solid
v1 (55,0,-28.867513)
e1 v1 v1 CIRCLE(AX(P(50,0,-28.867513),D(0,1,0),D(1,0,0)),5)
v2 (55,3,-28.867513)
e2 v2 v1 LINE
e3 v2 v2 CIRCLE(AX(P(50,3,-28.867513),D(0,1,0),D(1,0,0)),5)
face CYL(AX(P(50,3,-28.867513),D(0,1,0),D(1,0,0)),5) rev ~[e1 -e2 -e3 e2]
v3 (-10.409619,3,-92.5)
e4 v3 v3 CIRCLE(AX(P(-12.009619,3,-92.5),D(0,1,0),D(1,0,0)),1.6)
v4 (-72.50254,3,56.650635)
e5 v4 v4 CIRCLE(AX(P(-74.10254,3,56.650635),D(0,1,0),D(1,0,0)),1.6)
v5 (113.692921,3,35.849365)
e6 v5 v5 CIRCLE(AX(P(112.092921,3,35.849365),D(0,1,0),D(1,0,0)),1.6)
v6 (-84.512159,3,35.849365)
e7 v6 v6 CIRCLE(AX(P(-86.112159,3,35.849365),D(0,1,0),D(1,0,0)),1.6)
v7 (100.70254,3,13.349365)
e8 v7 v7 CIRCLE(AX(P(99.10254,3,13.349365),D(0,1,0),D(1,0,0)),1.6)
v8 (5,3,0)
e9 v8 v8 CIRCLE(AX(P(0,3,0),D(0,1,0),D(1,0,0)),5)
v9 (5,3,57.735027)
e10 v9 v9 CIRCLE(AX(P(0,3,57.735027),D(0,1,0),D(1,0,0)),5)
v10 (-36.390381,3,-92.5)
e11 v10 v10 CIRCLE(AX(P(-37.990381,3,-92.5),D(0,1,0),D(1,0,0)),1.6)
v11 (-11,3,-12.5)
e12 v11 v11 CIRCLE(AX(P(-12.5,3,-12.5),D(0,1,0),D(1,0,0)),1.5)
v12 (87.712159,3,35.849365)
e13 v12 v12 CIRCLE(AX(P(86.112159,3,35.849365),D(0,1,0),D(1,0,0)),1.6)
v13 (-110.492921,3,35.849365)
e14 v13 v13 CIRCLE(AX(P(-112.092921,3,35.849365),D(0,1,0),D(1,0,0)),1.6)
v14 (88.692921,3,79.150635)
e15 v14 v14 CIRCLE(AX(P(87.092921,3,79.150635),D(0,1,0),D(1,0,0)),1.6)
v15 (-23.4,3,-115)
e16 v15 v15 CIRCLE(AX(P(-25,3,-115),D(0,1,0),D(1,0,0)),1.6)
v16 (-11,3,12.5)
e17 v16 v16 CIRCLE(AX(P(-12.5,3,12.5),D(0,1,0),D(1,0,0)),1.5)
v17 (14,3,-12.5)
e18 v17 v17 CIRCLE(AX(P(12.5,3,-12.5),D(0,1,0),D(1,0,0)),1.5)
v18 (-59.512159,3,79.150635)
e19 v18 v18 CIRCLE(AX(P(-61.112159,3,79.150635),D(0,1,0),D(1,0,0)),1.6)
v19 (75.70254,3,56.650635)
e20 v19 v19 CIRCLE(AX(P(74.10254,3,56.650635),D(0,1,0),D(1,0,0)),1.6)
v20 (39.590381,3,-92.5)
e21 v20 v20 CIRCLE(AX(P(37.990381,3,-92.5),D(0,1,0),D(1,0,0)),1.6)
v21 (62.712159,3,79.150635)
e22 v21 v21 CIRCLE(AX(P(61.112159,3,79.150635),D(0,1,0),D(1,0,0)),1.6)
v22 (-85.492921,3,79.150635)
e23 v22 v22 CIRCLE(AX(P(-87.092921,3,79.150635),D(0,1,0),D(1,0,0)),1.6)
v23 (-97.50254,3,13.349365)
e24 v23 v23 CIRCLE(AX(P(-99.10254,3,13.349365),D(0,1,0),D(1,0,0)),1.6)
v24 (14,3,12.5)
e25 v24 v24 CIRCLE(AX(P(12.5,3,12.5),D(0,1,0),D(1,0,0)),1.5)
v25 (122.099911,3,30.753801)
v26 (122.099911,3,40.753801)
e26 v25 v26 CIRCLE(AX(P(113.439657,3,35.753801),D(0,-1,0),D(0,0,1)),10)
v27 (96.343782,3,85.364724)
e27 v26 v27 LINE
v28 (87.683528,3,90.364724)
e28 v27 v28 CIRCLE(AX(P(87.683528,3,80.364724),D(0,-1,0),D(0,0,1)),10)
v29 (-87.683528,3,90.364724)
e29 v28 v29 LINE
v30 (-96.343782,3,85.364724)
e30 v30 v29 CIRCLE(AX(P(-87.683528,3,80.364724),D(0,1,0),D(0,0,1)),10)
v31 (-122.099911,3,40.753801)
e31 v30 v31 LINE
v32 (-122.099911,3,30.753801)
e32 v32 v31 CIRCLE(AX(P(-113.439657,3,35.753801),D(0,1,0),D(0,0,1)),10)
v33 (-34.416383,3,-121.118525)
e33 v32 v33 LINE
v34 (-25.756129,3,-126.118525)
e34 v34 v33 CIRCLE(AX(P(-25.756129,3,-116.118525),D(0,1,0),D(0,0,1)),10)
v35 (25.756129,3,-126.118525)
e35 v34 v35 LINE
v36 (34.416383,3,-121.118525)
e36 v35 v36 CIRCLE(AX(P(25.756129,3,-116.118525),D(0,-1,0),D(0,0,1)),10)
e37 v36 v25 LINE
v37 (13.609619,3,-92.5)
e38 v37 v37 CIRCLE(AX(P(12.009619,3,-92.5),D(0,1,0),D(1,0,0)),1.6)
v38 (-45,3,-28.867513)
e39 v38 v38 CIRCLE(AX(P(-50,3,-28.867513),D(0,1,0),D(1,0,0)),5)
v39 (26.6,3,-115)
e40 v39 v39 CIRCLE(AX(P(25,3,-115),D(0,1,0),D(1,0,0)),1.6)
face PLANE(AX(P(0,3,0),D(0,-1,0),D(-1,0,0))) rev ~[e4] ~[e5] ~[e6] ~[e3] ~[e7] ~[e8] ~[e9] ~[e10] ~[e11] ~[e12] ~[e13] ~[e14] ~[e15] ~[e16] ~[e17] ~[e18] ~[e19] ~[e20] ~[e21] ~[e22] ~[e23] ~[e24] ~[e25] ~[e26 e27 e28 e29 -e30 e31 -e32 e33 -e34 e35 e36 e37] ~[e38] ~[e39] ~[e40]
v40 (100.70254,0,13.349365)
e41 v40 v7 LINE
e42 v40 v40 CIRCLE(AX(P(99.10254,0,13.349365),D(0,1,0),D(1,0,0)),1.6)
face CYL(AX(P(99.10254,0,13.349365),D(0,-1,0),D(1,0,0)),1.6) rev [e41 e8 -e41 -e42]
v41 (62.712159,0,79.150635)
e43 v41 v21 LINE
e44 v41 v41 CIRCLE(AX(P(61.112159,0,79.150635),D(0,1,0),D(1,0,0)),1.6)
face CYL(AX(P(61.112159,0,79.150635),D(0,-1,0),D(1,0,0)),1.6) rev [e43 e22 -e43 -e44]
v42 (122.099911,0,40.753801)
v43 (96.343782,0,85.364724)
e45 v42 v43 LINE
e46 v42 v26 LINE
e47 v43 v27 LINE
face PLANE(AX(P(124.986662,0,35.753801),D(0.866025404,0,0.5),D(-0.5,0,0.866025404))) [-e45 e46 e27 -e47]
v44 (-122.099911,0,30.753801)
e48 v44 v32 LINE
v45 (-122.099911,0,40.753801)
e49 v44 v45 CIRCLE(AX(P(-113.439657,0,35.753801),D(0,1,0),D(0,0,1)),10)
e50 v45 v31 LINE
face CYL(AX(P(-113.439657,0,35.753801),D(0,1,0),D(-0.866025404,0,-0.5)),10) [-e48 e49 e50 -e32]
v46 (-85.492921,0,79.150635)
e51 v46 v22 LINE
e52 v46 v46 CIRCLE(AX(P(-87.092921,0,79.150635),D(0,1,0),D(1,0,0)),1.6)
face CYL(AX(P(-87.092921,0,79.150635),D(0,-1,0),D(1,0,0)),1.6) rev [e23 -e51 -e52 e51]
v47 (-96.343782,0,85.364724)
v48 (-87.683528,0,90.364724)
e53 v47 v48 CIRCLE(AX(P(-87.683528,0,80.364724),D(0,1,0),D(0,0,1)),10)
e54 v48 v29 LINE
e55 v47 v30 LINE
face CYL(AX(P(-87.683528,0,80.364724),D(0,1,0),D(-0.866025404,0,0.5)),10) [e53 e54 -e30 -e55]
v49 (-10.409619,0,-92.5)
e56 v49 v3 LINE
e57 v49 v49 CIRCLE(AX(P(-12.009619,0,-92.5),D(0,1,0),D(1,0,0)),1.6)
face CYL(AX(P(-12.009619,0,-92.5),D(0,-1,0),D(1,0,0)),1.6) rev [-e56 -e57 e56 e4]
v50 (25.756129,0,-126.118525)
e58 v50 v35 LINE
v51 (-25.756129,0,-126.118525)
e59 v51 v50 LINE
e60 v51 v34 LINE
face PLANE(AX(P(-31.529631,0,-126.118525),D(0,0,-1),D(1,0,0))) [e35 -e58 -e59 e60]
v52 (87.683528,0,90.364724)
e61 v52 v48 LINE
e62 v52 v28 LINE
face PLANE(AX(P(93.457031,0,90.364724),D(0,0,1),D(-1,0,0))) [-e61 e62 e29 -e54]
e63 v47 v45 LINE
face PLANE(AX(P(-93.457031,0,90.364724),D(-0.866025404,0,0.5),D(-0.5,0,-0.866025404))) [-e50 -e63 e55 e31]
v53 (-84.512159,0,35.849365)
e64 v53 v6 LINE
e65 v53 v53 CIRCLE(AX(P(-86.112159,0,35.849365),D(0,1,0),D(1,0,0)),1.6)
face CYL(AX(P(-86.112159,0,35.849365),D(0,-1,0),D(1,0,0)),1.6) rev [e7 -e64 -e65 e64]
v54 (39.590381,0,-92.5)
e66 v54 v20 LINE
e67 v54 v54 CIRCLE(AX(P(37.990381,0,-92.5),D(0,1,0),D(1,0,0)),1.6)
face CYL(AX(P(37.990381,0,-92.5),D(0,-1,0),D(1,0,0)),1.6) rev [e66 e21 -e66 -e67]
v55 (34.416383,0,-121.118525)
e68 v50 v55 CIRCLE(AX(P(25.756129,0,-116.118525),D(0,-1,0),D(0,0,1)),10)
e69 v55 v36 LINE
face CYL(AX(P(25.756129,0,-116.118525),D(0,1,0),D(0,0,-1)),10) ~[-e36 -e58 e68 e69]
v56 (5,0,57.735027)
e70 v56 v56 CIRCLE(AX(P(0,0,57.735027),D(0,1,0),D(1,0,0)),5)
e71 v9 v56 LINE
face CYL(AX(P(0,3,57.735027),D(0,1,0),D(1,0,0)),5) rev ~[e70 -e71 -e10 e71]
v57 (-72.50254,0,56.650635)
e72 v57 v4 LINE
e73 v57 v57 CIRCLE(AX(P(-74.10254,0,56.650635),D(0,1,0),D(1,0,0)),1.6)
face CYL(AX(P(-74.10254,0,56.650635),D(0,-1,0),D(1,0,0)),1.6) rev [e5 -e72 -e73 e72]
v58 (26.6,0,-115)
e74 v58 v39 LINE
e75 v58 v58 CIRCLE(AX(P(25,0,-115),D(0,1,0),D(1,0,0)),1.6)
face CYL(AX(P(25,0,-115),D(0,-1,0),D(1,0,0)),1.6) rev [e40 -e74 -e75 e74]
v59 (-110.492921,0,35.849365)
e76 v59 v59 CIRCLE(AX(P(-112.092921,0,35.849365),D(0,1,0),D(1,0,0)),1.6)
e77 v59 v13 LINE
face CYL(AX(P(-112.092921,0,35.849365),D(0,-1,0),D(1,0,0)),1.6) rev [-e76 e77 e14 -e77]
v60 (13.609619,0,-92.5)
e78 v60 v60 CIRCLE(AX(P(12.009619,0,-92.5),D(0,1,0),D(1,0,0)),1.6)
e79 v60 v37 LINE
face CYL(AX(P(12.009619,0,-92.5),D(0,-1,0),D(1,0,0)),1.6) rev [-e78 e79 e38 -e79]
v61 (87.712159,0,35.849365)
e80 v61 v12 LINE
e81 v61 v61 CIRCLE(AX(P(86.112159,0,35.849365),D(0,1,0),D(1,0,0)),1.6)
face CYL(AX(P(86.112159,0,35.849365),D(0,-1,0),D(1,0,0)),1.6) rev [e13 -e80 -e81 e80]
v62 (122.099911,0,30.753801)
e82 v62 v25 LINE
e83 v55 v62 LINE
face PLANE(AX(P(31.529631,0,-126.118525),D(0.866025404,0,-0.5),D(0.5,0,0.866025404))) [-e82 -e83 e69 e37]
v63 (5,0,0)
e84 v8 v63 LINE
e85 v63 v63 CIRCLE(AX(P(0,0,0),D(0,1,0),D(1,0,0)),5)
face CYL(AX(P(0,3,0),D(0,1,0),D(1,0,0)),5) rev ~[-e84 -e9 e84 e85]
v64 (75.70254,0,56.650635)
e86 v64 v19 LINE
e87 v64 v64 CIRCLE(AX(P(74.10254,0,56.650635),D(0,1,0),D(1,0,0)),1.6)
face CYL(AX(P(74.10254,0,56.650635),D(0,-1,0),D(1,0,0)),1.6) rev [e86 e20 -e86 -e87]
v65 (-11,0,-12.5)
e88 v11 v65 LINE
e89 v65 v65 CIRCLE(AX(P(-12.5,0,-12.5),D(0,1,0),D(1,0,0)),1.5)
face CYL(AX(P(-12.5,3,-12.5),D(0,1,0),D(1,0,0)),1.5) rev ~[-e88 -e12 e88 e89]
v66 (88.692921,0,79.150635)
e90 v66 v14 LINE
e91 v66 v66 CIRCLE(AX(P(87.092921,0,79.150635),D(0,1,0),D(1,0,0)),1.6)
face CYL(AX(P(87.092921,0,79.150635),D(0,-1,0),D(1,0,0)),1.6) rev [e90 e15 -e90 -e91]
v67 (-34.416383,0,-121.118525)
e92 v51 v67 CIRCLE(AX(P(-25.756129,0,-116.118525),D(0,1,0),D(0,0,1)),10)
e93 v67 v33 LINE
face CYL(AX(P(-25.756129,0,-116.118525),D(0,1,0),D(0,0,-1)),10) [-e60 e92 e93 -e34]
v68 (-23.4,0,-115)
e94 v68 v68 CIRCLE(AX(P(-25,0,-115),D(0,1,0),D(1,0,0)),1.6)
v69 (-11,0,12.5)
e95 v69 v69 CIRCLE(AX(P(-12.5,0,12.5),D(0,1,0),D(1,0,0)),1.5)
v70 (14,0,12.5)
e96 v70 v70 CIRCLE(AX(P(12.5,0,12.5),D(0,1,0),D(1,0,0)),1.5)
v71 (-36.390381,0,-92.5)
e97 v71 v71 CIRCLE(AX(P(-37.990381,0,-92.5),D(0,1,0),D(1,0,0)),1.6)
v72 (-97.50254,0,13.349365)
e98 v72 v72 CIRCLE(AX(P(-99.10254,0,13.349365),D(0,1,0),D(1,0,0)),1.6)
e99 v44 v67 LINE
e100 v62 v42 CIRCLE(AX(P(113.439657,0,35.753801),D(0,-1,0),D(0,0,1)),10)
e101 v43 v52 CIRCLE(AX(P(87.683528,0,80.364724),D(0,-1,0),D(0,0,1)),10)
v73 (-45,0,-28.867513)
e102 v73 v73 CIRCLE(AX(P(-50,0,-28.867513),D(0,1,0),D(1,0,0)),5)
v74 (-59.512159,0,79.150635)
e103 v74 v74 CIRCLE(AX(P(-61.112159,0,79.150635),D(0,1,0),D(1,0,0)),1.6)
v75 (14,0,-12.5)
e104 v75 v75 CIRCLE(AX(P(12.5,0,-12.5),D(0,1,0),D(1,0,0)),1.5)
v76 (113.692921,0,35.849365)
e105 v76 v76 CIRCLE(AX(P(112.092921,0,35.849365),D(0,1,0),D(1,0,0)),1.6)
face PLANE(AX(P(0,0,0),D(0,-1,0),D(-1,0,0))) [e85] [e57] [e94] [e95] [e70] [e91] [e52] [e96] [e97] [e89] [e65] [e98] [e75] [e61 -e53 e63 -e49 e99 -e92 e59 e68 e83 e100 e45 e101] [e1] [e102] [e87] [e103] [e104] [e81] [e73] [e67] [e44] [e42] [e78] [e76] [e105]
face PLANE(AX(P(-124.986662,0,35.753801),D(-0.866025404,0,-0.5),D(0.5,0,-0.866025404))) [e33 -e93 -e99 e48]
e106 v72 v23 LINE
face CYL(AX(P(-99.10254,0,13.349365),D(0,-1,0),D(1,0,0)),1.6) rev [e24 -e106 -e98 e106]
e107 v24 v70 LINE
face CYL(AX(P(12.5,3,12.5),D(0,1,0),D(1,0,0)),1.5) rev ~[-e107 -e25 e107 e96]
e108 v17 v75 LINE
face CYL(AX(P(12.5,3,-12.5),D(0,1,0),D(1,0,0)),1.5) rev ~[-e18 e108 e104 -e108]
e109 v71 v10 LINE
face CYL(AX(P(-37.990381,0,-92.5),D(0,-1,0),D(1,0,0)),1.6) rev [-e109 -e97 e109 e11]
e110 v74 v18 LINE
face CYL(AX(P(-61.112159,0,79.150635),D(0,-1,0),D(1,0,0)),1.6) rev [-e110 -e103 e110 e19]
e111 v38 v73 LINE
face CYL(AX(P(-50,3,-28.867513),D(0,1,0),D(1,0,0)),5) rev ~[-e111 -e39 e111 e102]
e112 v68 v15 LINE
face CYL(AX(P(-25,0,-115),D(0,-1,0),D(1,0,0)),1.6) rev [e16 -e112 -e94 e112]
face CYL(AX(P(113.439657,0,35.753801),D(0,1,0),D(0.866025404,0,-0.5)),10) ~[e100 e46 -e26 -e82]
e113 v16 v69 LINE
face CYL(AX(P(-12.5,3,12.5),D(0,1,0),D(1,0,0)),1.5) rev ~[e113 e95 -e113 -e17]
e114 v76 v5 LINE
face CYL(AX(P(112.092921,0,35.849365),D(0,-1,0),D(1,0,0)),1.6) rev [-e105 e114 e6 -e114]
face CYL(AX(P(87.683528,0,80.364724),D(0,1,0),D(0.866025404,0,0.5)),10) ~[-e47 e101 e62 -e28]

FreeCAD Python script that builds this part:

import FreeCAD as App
import Part
import Sketcher
Q = App.Units.Quantity


def edges_at(feature, points):
    """Names of the edges that pass closest to the given points."""
    edges = feature.Shape.Edges
    near = lambda p: min(range(len(edges)), key=lambda i: edges[i].distToShape(Part.Vertex(*p))[0])
    return sorted({f"Edge{near(p) + 1}" for p in points})


def add_polygon(sketch, points):
    """Adds a closed chain of lines whose ends are joined by coincident constraints."""
    first, n = sketch.GeometryCount, len(points)
    for a, b in zip(points, points[1:] + points[:1]):
        sketch.addGeometry(Part.LineSegment(App.Vector(*a, 0), App.Vector(*b, 0)), False)
    for i in range(n):
        sketch.addConstraint(Sketcher.Constraint("Coincident", first + i, 2, first + (i + 1) % n, 1))

doc = App.newDocument("Part")
body = doc.addObject("PartDesign::Body", "Body")

# Sketch on XZ plane
sketch1 = body.newObject("Sketcher::SketchObject", "Sketch")
sketch1.AttachmentSupport = (doc.getObject("XZ_Plane"), [""])
sketch1.MapMode = "FlatFace"
add_polygon(sketch1, [(31.529631, -126.118525), (-31.529631, -126.118525), (-124.986662, 35.753801), (-93.457031, 90.364724), (93.457031, 90.364724), (124.986662, 35.753801)])  # lines 0-5
sketch1.addGeometry(Part.Circle(App.Vector(87.092921, 79.150635, 0), App.Vector(0, 0, 1), 1.6), False)  # 6
sketch1.addGeometry(Part.Circle(App.Vector(61.112159, 79.150635, 0), App.Vector(0, 0, 1), 1.6), False)  # 7
sketch1.addGeometry(Part.Circle(App.Vector(74.10254, 56.650635, 0), App.Vector(0, 0, 1), 1.6), False)  # 8
sketch1.addGeometry(Part.Circle(App.Vector(112.092921, 35.849365, 0), App.Vector(0, 0, 1), 1.6), False)  # 9
sketch1.addGeometry(Part.Circle(App.Vector(86.112159, 35.849365, 0), App.Vector(0, 0, 1), 1.6), False)  # 10
sketch1.addGeometry(Part.Circle(App.Vector(99.10254, 13.349365, 0), App.Vector(0, 0, 1), 1.6), False)  # 11
sketch1.addGeometry(Part.Circle(App.Vector(-61.112159, 79.150635, 0), App.Vector(0, 0, 1), 1.6), False)  # 12
sketch1.addGeometry(Part.Circle(App.Vector(-74.10254, 56.650635, 0), App.Vector(0, 0, 1), 1.6), False)  # 13
sketch1.addGeometry(Part.Circle(App.Vector(-87.092921, 79.150635, 0), App.Vector(0, 0, 1), 1.6), False)  # 14
sketch1.addGeometry(Part.Circle(App.Vector(-86.112159, 35.849365, 0), App.Vector(0, 0, 1), 1.6), False)  # 15
sketch1.addGeometry(Part.Circle(App.Vector(-112.092921, 35.849365, 0), App.Vector(0, 0, 1), 1.6), False)  # 16
sketch1.addGeometry(Part.Circle(App.Vector(-99.10254, 13.349365, 0), App.Vector(0, 0, 1), 1.6), False)  # 17
sketch1.addGeometry(Part.Circle(App.Vector(37.990381, -92.5, 0), App.Vector(0, 0, 1), 1.6), False)  # 18
sketch1.addGeometry(Part.Circle(App.Vector(12.009619, -92.5, 0), App.Vector(0, 0, 1), 1.6), False)  # 19
sketch1.addGeometry(Part.Circle(App.Vector(25, -115, 0), App.Vector(0, 0, 1), 1.6), False)  # 20
sketch1.addGeometry(Part.Circle(App.Vector(-12.009619, -92.5, 0), App.Vector(0, 0, 1), 1.6), False)  # 21
sketch1.addGeometry(Part.Circle(App.Vector(-25, -115, 0), App.Vector(0, 0, 1), 1.6), False)  # 22
sketch1.addGeometry(Part.Circle(App.Vector(-37.990381, -92.5, 0), App.Vector(0, 0, 1), 1.6), False)  # 23
sketch1.addConstraint([
    Sketcher.Constraint("Horizontal", 0),
    Sketcher.Constraint("Horizontal", 3),
    Sketcher.Constraint("Equal", 6, 7),
    Sketcher.Constraint("Equal", 7, 8),
    Sketcher.Constraint("Equal", 8, 9),
    Sketcher.Constraint("Equal", 9, 10),
    Sketcher.Constraint("Equal", 10, 11),
    Sketcher.Constraint("Equal", 11, 12),
    Sketcher.Constraint("Equal", 12, 13),
    Sketcher.Constraint("Equal", 13, 14),
    Sketcher.Constraint("Equal", 14, 15),
    Sketcher.Constraint("Equal", 15, 16),
    Sketcher.Constraint("Equal", 16, 17),
    Sketcher.Constraint("Equal", 17, 18),
    Sketcher.Constraint("Equal", 18, 19),
    Sketcher.Constraint("Equal", 19, 20),
    Sketcher.Constraint("Equal", 20, 21),
    Sketcher.Constraint("Equal", 21, 22),
    Sketcher.Constraint("Equal", 22, 23),
    Sketcher.Constraint("Symmetric", 7, 3, 12, 3, -2),
    Sketcher.Constraint("Symmetric", 8, 3, 13, 3, -2),
    Sketcher.Constraint("Symmetric", 6, 3, 14, 3, -2),
    Sketcher.Constraint("Symmetric", 10, 3, 15, 3, -2),
    Sketcher.Constraint("Symmetric", 9, 3, 16, 3, -2),
    Sketcher.Constraint("Symmetric", 11, 3, 17, 3, -2),
    Sketcher.Constraint("Symmetric", 19, 3, 21, 3, -2),
    Sketcher.Constraint("Symmetric", 20, 3, 22, 3, -2),
    Sketcher.Constraint("Symmetric", 18, 3, 23, 3, -2),
    Sketcher.Constraint("Symmetric", 1, 2, 4, 2, -2),
    Sketcher.Constraint("Parallel", 1, 4),
    Sketcher.Constraint("Parallel", 2, 5),
    Sketcher.Constraint("Horizontal", 6, 3, 7, 3),
    Sketcher.Constraint("Horizontal", 9, 3, 10, 3),
    Sketcher.Constraint("Horizontal", 18, 3, 19, 3),
    Sketcher.Constraint("Equal", 2, 4),
    Sketcher.Constraint("Diameter", 6, Q("3.2 mm")),
    Sketcher.Constraint("Angle", 1, Q("120 deg")),
    Sketcher.Constraint("DistanceX", -1, 1, 20, 3, Q("25 mm")),
    Sketcher.Constraint("DistanceY", 20, 3, -1, 1, Q("115 mm")),
    Sketcher.Constraint("DistanceX", 6, 3, 9, 3, Q("25 mm")),
    Sketcher.Constraint("DistanceX", 7, 3, 10, 3, Q("25 mm")),
    Sketcher.Constraint("DistanceX", 8, 3, 11, 3, Q("25 mm")),
    Sketcher.Constraint("DistanceX", 21, 3, 18, 3, Q("50 mm")),
    Sketcher.Constraint("DistanceY", 18, 3, -1, 1, Q("92.5 mm")),
    Sketcher.Constraint("DistanceY", 8, 3, 7, 3, Q("22.5 mm")),
    Sketcher.Constraint("DistanceY", 11, 3, 10, 3, Q("22.5 mm")),
    Sketcher.Constraint("DistanceX", 3, 1, 3, 2, Q("186.914062 mm")),
    Sketcher.Constraint("DistanceY", -1, 1, 1, 2, Q("35.753801 mm")),
    Sketcher.Constraint("DistanceX", 12, 3, 8, 3, Q("135.2147 mm")),
    Sketcher.Constraint("Distance", 1, Q("186.914062 mm")),
    Sketcher.Constraint("DistanceX", 0, 2, 0, 1, Q("63.059263 mm")),
    Sketcher.Constraint("DistanceX", -1, 1, 6, 3, Q("87.092921 mm")),
    Sketcher.Constraint("DistanceX", -1, 1, 7, 3, Q("61.112159 mm")),
    Sketcher.Constraint("DistanceX", -1, 1, 18, 3, Q("37.990381 mm")),
    Sketcher.Constraint("DistanceY", 9, 3, 8, 3, Q("20.80127 mm")),
    Sketcher.Constraint("DistanceY", 14, 3, 2, 2, Q("11.214089 mm")),
])
pad1 = body.newObject("PartDesign::Pad", "Pad")
pad1.Profile = sketch1
pad1.Length = 3
pad1.Reversed = True

# Sketch on XZ plane
sketch2 = body.newObject("Sketcher::SketchObject", "Sketch001")
sketch2.AttachmentSupport = (doc.getObject("XZ_Plane"), [""])
sketch2.MapMode = "FlatFace"
sketch2.AttachmentOffset = App.Placement(App.Vector(0, 0, -3), App.Rotation())
sketch2.addGeometry([
    Part.Circle(App.Vector(-12.5, -12.5, 0), App.Vector(0, 0, 1), 1.5),  # 0
    Part.Circle(App.Vector(12.5, -12.5, 0), App.Vector(0, 0, 1), 1.5),  # 1
    Part.Circle(App.Vector(12.5, 12.5, 0), App.Vector(0, 0, 1), 1.5),  # 2
    Part.Circle(App.Vector(-12.5, 12.5, 0), App.Vector(0, 0, 1), 1.5),  # 3
    Part.Circle(App.Vector(-50, -28.867513, 0), App.Vector(0, 0, 1), 5),  # 4
    Part.Circle(App.Vector(50, -28.867513, 0), App.Vector(0, 0, 1), 5),  # 5
    Part.Circle(App.Vector(0, 57.735027, 0), App.Vector(0, 0, 1), 5),  # 6
    Part.Circle(App.Vector(0, 0, 0), App.Vector(0, 0, 1), 5),  # 7
], False)
sketch2.addConstraint([
    Sketcher.Constraint("Coincident", 7, 3, -1, 1),
    Sketcher.Constraint("Equal", 0, 1),
    Sketcher.Constraint("Equal", 1, 2),
    Sketcher.Constraint("Equal", 2, 3),
    Sketcher.Constraint("Equal", 4, 5),
    Sketcher.Constraint("Equal", 5, 6),
    Sketcher.Constraint("Equal", 6, 7),
    Sketcher.Constraint("Symmetric", 0, 3, 2, 3, -1, 1),
    Sketcher.Constraint("Symmetric", 1, 3, 3, 3, -1, 1),
    Sketcher.Constraint("Symmetric", 0, 3, 1, 3, -2),
    Sketcher.Constraint("Symmetric", 4, 3, 5, 3, -2),
    Sketcher.Constraint("PointOnObject", 6, 3, -2),
    Sketcher.Constraint("Diameter", 0, Q("3 mm")),
    Sketcher.Constraint("Diameter", 4, Q("10 mm")),
    Sketcher.Constraint("DistanceX", 4, 3, -1, 1, Q("50 mm")),
    Sketcher.Constraint("DistanceX", 0, 3, 1, 3, Q("25 mm")),
    Sketcher.Constraint("DistanceY", 1, 3, 2, 3, Q("25 mm")),
    Sketcher.Constraint("DistanceY", 4, 3, 6, 3, Q("86.60254 mm")),
    Sketcher.Constraint("DistanceY", 4, 3, -1, 1, Q("28.867513 mm")),
])
pocket1 = body.newObject("PartDesign::Pocket", "Pocket")
pocket1.Profile = sketch2
pocket1.Type = "ThroughAll"
pocket1.Reversed = True
doc.recompute()

fillet = body.newObject("PartDesign::Fillet", "Fillet")
fillet.Base = (pocket1, edges_at(pocket1, [
    (-31.53, 1.5, -126.119),
    (31.53, 1.5, -126.119),
    (124.987, 1.5, 35.754),
    (93.457, 1.5, 90.365),
    (-93.457, 1.5, 90.365),
    (-124.987, 1.5, 35.754),
]))
fillet.Radius = 10

doc.recompute()
